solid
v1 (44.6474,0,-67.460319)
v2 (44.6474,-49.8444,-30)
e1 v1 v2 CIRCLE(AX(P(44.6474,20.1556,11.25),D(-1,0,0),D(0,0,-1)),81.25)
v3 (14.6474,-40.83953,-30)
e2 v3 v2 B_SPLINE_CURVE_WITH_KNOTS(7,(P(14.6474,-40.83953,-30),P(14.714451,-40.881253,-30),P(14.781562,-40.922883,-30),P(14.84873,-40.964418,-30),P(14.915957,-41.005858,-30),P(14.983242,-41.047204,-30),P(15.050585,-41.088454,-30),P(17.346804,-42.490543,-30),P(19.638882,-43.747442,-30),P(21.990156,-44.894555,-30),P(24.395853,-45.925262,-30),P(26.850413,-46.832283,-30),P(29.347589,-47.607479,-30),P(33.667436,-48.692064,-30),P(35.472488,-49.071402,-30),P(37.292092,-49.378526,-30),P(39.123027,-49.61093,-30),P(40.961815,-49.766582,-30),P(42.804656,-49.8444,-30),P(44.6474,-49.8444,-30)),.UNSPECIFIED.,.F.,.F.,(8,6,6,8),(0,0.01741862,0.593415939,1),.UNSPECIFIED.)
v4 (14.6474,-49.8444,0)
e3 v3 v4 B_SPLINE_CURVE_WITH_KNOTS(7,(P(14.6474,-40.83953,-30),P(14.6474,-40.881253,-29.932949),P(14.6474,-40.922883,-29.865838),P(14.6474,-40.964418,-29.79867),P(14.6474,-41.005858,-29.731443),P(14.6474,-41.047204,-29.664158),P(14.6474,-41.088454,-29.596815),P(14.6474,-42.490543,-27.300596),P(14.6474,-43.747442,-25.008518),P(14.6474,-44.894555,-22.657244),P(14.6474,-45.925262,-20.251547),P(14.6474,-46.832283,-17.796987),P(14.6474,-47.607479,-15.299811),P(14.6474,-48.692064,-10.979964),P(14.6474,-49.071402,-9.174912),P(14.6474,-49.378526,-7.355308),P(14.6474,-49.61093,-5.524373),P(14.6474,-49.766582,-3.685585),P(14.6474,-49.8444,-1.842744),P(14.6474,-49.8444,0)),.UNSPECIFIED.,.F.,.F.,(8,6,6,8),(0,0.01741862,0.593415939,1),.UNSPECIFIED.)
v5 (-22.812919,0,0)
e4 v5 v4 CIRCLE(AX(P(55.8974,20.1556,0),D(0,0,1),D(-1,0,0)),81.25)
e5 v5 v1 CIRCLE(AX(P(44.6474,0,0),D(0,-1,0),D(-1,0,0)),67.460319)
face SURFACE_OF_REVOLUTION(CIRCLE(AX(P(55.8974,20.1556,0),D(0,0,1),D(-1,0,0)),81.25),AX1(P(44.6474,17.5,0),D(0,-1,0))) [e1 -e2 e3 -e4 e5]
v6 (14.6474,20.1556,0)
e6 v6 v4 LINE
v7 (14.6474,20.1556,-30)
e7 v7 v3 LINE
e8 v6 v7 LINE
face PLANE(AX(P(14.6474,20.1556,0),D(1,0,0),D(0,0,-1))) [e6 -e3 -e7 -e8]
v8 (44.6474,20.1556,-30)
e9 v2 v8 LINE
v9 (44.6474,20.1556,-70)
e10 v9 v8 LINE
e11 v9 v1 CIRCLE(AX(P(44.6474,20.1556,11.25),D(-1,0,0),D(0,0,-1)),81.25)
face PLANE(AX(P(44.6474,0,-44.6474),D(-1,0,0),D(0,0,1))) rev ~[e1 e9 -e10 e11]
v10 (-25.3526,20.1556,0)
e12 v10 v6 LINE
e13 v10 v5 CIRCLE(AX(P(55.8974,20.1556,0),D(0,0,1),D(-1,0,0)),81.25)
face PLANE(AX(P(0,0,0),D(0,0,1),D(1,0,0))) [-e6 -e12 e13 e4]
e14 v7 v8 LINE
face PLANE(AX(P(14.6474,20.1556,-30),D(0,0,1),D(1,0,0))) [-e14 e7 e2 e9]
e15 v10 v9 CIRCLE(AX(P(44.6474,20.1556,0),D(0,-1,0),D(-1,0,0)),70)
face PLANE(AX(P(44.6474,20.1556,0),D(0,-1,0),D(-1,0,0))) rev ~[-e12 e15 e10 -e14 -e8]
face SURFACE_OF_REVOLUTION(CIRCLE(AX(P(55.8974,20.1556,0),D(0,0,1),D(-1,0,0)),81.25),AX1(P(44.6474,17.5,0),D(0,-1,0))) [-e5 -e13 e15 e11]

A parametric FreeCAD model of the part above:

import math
import FreeCAD as App
import Part
import Sketcher

V = App.Vector
Q = App.Units.Quantity


def add_polygon(sketch, points):
    """Adds a closed chain of lines whose ends are joined by coincident constraints."""
    first, n = sketch.GeometryCount, len(points)
    for a, b in zip(points, points[1:] + points[:1]):
        sketch.addGeometry(Part.LineSegment(App.Vector(*a, 0), App.Vector(*b, 0)), False)
    for i in range(n):
        sketch.addConstraint(Sketcher.Constraint("Coincident", first + i, 2, first + (i + 1) % n, 1))

doc = App.newDocument("Part")
params = doc.addObject("Spreadsheet::Sheet", "Params")
for row, (alias, value) in enumerate([
    ("sketch1_width", "40 mm"),
    ("sketch1_height", "70 mm"),
    ("revolution_angle", "90 deg"),
    ("sketch2_width", "30 mm"),
    ("pocket1_length", "70 mm"),
], start=1):
    params.set(f"A{row}", alias)
    params.set(f"B{row}", "=" + value)
    params.setAlias(f"B{row}", alias)

body = doc.addObject("PartDesign::Body", "Body")

sketch1 = body.newObject("Sketcher::SketchObject", "Sketch")
sketch1.AttachmentSupport = (doc.getObject("XY_Plane"), [""])
sketch1.MapMode = "FlatFace"
sketch1.addGeometry([
    Part.LineSegment(V(15, 20, 0), V(-25, 20, 0)),
    Part.ArcOfCircle(Part.Circle(V(56, 20, 0), V(0, 0, 1), 81), math.radians(180), math.radians(239)),
    Part.LineSegment(V(15, -50, 0), V(15, 20, 0)),
], False)
sketch1.addGeometry(Part.LineSegment(V(45, 20, 0), V(45, -50, 0)), True)
sketch1.addConstraint([
    Sketcher.Constraint("Coincident", 0, 2, 1, 1),
    Sketcher.Constraint("Coincident", 1, 2, 2, 1),
    Sketcher.Constraint("Coincident", 2, 2, 0, 1),
    Sketcher.Constraint("Horizontal", 0),
    Sketcher.Constraint("Vertical", 2),
    Sketcher.Constraint("Vertical", 3),
    Sketcher.Constraint("Horizontal", 1, 3, 0, 2),
    Sketcher.Constraint("Horizontal", 2, 2, 3, 1),
    Sketcher.Constraint("Horizontal", 1, 2, 3, 2),
    Sketcher.Constraint("DistanceX", 0, 2, 0, 1, Q("40 mm")),
    Sketcher.Constraint("DistanceY", 2, 1, 2, 2, Q("70 mm")),
    Sketcher.Constraint("DistanceX", 0, 2, 3, 1, Q("70 mm")),
    Sketcher.Constraint("DistanceX", -1, 1, 1, 3, Q("55.8974 mm")),
    Sketcher.Constraint("DistanceY", -1, 1, 1, 3, Q("20.1556 mm")),
])
sketch1.setExpression("Constraints[9]", "Params.sketch1_width")
sketch1.setExpression("Constraints[10]", "Params.sketch1_height")
revolution = body.newObject("PartDesign::Revolution", "Revolution")
revolution.Profile = sketch1
revolution.ReferenceAxis = (sketch1, ["Axis0"])
revolution.setExpression("Angle", "Params.revolution_angle")

sketch2 = body.newObject("Sketcher::SketchObject", "Sketch001")
sketch2.AttachmentSupport = (doc.getObject("XZ_Plane"), [""])
sketch2.MapMode = "FlatFace"
sketch2.AttachmentOffset = App.Placement(V(0, 0, -20.1556), App.Rotation())
add_polygon(sketch2, [(15, 0), (45, 0), (45, -30), (15, -30)])
sketch2.addConstraint([
    Sketcher.Constraint("Horizontal", 0),
    Sketcher.Constraint("Vertical", 1),
    Sketcher.Constraint("Horizontal", 2),
    Sketcher.Constraint("Vertical", 3),
    Sketcher.Constraint("PointOnObject", 0, 2, -1),
    Sketcher.Constraint("Equal", 2, 1),
    Sketcher.Constraint("DistanceX", 0, 1, 0, 2, Q("30 mm")),
    Sketcher.Constraint("DistanceX", -1, 1, 0, 2, Q("44.6474 mm")),
])
sketch2.setExpression("Constraints[10]", "Params.sketch2_width")
pocket1 = body.newObject("PartDesign::Pocket", "Pocket")
pocket1.Profile = sketch2
pocket1.setExpression("Length", "Params.pocket1_length")
pocket1.Reversed = True

doc.recompute()
